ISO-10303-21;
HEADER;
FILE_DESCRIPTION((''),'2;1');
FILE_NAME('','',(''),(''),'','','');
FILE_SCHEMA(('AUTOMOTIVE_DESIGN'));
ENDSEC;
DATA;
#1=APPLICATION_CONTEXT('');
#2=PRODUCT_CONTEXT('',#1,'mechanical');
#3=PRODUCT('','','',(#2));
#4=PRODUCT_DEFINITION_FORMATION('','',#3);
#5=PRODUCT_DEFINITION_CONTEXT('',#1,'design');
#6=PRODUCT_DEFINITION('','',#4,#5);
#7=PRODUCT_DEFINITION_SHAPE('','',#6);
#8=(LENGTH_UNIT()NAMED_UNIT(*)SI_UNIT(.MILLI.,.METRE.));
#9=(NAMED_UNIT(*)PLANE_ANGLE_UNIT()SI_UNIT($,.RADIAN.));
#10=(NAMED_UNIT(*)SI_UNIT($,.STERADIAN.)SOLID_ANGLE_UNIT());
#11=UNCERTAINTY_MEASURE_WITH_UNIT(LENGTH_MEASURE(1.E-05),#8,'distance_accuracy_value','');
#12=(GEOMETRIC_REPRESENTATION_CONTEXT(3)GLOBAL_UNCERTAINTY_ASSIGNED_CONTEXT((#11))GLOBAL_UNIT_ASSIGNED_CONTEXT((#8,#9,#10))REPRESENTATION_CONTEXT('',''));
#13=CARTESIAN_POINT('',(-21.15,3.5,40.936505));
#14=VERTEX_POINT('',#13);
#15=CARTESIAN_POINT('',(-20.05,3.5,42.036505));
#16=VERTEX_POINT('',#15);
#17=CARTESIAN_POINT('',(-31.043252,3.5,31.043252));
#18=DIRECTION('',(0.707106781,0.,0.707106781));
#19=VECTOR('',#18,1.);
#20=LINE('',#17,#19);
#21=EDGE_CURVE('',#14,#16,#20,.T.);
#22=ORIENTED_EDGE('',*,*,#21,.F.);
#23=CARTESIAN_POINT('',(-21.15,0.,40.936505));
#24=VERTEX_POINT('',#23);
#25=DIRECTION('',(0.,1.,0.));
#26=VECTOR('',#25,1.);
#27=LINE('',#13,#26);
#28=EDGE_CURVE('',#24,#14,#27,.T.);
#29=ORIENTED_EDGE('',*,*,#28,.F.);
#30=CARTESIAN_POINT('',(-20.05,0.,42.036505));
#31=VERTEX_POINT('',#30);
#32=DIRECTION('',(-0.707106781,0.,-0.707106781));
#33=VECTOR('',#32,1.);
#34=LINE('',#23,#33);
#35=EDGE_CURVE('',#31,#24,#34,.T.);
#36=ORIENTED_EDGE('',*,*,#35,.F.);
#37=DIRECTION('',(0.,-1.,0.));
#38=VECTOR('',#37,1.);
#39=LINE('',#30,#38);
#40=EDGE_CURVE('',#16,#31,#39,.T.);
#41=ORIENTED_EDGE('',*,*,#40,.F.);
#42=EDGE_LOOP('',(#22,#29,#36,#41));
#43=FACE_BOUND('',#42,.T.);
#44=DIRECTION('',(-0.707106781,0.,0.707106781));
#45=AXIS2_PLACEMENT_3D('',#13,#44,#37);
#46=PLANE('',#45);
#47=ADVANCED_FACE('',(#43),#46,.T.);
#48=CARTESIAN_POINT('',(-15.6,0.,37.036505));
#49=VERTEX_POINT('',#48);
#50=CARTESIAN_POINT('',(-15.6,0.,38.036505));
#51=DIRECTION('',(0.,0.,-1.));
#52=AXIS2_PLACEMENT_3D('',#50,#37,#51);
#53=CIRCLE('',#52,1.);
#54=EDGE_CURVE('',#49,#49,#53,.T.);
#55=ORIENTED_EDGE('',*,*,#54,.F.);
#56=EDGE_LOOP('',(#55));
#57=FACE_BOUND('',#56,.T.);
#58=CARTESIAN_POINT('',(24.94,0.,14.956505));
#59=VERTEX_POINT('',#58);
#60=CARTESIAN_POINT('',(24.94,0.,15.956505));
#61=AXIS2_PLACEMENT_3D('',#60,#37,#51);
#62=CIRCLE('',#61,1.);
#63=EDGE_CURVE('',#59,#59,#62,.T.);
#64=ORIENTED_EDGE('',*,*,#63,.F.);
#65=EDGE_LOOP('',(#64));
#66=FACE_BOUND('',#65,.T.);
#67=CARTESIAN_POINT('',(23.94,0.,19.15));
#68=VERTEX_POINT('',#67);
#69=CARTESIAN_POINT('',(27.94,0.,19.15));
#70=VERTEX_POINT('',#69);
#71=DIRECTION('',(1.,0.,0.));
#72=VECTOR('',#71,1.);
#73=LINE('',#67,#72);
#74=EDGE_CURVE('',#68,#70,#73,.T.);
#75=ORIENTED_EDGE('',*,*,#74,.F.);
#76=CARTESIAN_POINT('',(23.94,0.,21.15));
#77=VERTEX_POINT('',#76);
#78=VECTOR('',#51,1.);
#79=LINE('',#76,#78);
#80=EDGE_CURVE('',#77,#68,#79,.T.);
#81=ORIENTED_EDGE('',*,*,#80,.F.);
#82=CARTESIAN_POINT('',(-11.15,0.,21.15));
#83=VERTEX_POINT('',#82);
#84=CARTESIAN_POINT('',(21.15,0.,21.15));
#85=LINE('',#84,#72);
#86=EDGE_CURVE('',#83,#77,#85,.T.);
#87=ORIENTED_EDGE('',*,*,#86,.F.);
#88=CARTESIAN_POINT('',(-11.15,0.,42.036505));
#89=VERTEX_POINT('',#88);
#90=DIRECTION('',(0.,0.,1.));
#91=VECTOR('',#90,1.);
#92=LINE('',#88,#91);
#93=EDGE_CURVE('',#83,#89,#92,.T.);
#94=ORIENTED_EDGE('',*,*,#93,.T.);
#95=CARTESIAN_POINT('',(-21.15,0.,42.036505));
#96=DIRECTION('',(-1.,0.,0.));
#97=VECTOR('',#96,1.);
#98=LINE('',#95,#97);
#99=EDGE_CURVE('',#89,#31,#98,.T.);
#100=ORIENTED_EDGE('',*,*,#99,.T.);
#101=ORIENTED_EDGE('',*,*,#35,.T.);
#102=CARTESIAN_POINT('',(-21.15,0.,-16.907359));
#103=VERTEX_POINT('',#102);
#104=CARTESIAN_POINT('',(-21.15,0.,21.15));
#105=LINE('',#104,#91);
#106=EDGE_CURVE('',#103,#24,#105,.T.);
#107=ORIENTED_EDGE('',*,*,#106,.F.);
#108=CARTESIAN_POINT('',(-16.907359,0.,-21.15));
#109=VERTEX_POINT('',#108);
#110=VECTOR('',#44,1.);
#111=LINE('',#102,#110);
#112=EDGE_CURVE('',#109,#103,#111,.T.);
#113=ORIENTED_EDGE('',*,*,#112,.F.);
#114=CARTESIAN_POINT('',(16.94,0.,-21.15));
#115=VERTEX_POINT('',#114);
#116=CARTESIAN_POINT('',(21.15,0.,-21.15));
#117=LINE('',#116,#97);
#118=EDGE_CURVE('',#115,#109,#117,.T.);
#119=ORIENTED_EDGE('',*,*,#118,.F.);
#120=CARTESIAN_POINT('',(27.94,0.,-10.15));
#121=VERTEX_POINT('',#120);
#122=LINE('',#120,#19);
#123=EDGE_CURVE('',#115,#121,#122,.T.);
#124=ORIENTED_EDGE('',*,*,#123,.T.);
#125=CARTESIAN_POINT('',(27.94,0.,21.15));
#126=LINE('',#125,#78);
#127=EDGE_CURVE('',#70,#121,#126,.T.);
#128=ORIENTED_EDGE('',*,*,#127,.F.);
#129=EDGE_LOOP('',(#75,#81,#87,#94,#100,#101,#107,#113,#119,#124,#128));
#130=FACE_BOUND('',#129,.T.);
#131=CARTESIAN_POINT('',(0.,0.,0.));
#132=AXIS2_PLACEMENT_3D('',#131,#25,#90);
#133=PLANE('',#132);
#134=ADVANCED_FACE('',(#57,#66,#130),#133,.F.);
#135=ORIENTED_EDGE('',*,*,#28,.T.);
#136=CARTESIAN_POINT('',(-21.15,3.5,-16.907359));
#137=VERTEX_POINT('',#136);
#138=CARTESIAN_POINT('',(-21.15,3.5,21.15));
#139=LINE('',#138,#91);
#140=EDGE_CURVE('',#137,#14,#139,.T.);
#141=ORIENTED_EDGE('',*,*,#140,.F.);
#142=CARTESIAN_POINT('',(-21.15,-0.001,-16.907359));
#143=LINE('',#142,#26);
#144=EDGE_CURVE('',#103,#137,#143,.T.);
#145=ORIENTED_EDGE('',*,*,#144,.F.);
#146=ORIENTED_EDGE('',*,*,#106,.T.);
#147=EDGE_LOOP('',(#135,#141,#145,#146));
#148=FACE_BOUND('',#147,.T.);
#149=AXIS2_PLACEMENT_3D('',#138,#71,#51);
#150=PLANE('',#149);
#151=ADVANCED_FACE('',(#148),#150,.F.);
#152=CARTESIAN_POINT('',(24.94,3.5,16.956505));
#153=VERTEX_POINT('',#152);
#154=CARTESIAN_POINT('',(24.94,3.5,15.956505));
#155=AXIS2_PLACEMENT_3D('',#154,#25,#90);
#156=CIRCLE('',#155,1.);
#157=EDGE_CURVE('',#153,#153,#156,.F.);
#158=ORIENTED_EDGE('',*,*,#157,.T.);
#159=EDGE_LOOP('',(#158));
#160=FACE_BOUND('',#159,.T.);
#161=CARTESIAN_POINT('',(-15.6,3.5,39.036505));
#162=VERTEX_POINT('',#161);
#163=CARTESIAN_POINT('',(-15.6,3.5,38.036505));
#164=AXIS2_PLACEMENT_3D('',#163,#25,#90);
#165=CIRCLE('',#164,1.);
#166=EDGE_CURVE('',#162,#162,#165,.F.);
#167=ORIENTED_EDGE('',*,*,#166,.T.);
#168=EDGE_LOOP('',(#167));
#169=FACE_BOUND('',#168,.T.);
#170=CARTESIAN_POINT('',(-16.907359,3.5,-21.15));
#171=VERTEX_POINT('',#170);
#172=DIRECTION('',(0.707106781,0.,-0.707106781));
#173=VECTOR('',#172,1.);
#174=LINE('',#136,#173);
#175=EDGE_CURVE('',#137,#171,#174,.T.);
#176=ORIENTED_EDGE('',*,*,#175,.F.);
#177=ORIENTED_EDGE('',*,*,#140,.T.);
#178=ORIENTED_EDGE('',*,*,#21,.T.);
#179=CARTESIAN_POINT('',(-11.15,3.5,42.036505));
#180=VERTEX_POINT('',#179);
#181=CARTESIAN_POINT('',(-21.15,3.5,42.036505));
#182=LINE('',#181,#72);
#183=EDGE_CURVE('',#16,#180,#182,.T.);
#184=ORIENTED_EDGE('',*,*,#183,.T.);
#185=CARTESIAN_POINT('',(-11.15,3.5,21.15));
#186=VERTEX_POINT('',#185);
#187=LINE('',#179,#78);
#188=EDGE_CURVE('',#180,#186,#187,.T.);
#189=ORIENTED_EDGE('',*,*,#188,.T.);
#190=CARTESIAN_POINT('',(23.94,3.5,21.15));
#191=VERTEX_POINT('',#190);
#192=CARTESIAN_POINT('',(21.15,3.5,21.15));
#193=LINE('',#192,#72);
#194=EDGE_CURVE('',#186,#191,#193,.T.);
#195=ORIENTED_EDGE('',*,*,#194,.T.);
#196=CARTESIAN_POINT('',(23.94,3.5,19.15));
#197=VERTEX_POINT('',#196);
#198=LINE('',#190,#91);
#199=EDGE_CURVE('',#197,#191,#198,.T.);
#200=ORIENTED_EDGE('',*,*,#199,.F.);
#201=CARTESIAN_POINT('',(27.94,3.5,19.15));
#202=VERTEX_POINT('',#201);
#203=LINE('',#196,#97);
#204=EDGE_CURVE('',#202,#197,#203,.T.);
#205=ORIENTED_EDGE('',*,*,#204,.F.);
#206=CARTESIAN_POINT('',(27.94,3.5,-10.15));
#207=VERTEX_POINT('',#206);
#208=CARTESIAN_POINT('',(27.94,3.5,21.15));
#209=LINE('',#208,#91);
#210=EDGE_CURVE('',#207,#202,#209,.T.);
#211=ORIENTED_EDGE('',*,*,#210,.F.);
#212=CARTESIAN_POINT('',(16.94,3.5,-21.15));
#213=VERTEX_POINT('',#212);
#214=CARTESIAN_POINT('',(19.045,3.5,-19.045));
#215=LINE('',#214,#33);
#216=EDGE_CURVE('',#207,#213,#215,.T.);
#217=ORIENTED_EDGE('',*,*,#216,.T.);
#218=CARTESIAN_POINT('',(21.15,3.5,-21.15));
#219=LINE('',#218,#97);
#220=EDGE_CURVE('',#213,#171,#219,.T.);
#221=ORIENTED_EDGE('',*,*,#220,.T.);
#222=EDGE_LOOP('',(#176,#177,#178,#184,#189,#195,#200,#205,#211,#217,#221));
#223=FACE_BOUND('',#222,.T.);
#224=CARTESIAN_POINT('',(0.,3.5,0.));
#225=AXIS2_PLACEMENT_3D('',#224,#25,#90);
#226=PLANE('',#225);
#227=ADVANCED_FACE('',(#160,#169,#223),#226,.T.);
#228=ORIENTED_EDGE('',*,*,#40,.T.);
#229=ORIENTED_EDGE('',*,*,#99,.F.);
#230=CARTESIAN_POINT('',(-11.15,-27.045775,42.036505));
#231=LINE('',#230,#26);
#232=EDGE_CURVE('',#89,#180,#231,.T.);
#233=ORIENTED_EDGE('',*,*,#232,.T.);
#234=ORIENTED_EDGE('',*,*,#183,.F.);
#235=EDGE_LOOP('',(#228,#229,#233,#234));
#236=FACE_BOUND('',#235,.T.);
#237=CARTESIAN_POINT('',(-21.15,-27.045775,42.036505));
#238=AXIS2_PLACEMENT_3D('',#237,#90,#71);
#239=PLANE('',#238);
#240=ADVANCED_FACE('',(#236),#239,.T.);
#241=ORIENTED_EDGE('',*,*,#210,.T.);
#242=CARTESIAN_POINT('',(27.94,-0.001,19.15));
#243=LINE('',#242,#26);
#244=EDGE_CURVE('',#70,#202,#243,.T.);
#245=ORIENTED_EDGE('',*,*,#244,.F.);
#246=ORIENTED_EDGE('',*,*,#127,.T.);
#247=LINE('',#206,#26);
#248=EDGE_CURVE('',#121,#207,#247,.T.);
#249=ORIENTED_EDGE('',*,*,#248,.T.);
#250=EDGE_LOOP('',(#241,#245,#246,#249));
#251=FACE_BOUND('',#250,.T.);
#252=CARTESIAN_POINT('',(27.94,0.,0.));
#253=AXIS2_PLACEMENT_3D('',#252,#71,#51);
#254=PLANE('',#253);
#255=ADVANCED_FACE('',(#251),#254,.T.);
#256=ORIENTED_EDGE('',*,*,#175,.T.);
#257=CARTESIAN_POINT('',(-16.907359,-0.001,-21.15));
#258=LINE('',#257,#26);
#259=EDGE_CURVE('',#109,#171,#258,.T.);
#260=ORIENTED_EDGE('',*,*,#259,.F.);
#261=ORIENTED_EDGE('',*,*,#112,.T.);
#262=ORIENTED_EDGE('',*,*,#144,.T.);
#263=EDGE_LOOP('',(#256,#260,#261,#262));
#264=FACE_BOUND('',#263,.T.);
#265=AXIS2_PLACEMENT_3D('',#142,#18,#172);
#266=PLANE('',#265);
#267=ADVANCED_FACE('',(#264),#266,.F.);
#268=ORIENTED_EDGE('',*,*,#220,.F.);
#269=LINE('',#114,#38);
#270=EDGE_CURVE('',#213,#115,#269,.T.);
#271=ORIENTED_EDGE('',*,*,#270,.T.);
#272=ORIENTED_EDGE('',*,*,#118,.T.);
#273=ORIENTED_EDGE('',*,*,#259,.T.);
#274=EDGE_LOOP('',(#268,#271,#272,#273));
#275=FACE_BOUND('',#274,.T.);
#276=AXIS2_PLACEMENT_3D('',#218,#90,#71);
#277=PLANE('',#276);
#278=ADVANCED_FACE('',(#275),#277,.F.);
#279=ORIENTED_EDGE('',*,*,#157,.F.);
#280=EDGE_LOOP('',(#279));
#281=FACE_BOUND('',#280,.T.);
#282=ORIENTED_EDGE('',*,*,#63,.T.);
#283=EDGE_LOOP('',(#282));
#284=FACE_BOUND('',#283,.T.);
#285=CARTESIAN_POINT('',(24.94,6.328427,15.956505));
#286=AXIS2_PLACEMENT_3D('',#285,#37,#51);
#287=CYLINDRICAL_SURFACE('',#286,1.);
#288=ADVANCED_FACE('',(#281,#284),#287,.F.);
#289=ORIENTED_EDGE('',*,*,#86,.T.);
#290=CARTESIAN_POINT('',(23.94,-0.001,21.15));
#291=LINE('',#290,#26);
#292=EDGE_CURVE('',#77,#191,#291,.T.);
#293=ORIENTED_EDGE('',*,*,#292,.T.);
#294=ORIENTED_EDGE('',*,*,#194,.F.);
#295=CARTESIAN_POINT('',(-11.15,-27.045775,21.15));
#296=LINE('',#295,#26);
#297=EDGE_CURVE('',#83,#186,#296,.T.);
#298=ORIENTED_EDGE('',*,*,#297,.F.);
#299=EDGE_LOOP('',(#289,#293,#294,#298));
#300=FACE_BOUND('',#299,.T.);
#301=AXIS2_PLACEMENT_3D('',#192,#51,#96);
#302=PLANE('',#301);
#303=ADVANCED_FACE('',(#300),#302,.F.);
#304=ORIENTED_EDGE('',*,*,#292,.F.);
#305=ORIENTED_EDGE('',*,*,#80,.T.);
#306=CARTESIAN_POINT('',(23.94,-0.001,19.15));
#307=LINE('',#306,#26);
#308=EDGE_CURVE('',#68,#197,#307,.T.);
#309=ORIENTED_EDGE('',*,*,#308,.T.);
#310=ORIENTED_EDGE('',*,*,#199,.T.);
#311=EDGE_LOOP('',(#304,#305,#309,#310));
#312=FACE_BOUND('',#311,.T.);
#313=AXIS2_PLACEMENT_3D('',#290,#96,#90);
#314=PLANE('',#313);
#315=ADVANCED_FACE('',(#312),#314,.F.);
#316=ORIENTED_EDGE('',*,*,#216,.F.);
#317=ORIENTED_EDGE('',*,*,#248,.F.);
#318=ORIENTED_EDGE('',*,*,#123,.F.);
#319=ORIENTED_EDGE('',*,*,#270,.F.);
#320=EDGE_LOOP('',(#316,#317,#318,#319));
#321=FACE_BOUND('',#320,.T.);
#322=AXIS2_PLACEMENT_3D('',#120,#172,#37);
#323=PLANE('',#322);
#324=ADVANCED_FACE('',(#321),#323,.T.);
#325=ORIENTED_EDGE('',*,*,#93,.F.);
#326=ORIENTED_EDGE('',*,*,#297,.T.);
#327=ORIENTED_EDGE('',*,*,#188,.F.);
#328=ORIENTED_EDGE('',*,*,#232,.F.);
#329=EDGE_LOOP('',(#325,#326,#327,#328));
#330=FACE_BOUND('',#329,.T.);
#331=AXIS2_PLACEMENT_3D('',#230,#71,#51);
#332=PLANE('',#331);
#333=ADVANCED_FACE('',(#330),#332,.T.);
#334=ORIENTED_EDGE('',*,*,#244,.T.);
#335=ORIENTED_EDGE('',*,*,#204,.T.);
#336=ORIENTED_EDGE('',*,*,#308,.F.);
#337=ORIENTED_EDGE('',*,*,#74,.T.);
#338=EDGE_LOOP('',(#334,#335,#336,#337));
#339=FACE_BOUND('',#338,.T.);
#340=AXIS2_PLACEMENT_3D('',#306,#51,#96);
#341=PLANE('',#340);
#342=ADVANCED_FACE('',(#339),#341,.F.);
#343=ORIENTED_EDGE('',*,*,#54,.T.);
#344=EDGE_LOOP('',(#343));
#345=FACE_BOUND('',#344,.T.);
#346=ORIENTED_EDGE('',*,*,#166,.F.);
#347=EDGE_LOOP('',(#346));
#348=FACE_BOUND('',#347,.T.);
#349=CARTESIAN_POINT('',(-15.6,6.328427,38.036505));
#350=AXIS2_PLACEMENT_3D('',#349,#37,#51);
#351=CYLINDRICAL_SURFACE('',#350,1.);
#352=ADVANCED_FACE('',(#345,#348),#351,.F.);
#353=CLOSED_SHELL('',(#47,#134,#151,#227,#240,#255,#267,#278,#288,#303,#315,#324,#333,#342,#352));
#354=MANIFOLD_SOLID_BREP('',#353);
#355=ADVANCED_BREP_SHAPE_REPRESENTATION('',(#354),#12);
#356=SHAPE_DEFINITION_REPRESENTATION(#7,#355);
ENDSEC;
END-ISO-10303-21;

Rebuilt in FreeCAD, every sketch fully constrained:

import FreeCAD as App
import Part
import Sketcher
from FreeCAD import Vector
Q = App.Units.Quantity


def edges_at(feature, points):
    """Names of the edges that pass closest to the given points."""
    edges = feature.Shape.Edges
    near = lambda p: min(range(len(edges)), key=lambda i: edges[i].distToShape(Part.Vertex(*p))[0])
    return sorted({f"Edge{near(p) + 1}" for p in points})

doc = App.newDocument("Part")
params = doc.addObject("Spreadsheet::Sheet", "Params")
for row, (alias, value) in enumerate([
    ("sketch1_width", "42.3 mm"),
    ("pad1_length", "3.5 mm"),
    ("sketch2_length", "6 mm"),
    ("pocket1_length", "3.5 mm"),
    ("sketch3_width", "3.5 mm"),
    ("sketch3_height", "42.3 mm"),
    ("pad2_length", "6.79 mm"),
    ("pad2_length2", "6.79 mm"),
    ("sketch4_width", "4 mm"),
    ("sketch4_height", "2 mm"),
    ("sketch5_width", "10 mm"),
    ("sketch5_length", "6 mm"),
    ("pad3_length", "3.5 mm"),
    ("chamfer_size", "1.1 mm"),
    ("sketch6_diameter", "2 mm"),
    ("pocket3_length", "3.5 mm"),
    ("chamfer2_size", "11 mm"),
    ("sketch7_diameter", "2 mm"),
    ("pocket4_length", "3.5 mm"),
], start=1):
    params.set(f"A{row}", alias)
    params.set(f"B{row}", "=" + value)
    params.setAlias(f"B{row}", alias)

body = doc.addObject("PartDesign::Body", "Body")

sketch1 = doc.addObject("Sketcher::SketchObject", "Sketch")
body.addObject(sketch1)
sketch1.AttachmentSupport = (doc.XZ_Plane, [""])
sketch1.MapMode = "FlatFace"
sketch1.addGeometry([
    Part.LineSegment(Vector(-21, -21, 0), Vector(-21, 21, 0)),
    Part.LineSegment(Vector(-21, 21, 0), Vector(21, 21, 0)),
    Part.LineSegment(Vector(21, 21, 0), Vector(21, -21, 0)),
    Part.LineSegment(Vector(21, -21, 0), Vector(-21, -21, 0)),
], False)
sketch1.addConstraint([
    Sketcher.Constraint("Coincident", 0, 2, 1, 1),
    Sketcher.Constraint("Coincident", 1, 2, 2, 1),
    Sketcher.Constraint("Coincident", 2, 2, 3, 1),
    Sketcher.Constraint("Coincident", 3, 2, 0, 1),
    Sketcher.Constraint("Vertical", 0),
    Sketcher.Constraint("Horizontal", 1),
    Sketcher.Constraint("Vertical", 2),
    Sketcher.Constraint("Horizontal", 3),
    Sketcher.Constraint("Symmetric", 0, 2, 2, 2, -1, 1),
    Sketcher.Constraint("Equal", 3, 0),
    Sketcher.Constraint("DistanceX", 1, 1, 1, 2, Q("42.3 mm")),
])
sketch1.setExpression("Constraints[10]", "Params.sketch1_width")
pad1 = doc.addObject("PartDesign::Pad", "Pad")
body.addObject(pad1)
pad1.Profile = sketch1
pad1.setExpression("Length", "Params.pad1_length")
pad1.Reversed = True

sketch2 = doc.addObject("Sketcher::SketchObject", "Sketch001")
body.addObject(sketch2)
sketch2.AttachmentSupport = (doc.XZ_Plane, [""])
sketch2.MapMode = "FlatFace"
sketch2.AttachmentOffset = App.Placement(Vector(0, 0, -3.5), App.Rotation())
sketch2.addGeometry([
    Part.LineSegment(Vector(-21.1, -16.9, 0), Vector(-16.9, -21.1, 0)),
    Part.LineSegment(Vector(-16.9, -21.1, 0), Vector(-21.1, -21.1, 0)),
    Part.LineSegment(Vector(-21.1, -21.1, 0), Vector(-21.1, -16.9, 0)),
], False)
sketch2.addConstraint([
    Sketcher.Constraint("Coincident", 0, 2, 1, 1),
    Sketcher.Constraint("Coincident", 1, 2, 2, 1),
    Sketcher.Constraint("Coincident", 2, 2, 0, 1),
    Sketcher.Constraint("Horizontal", 1),
    Sketcher.Constraint("Vertical", 2),
    Sketcher.Constraint("Equal", 1, 2),
    Sketcher.Constraint("Distance", 0, Q("6 mm")),
    Sketcher.Constraint("DistanceY", 0, 2, -1, 1, Q("21.15 mm")),
    Sketcher.Constraint("DistanceX", 1, 2, -1, 1, Q("21.15 mm")),
])
sketch2.setExpression("Constraints[6]", "Params.sketch2_length")
pocket1 = doc.addObject("PartDesign::Pocket", "Pocket")
body.addObject(pocket1)
pocket1.Profile = sketch2
pocket1.setExpression("Length", "Params.pocket1_length")
pocket1.Reversed = True
doc.recompute()

polarpattern = doc.addObject("PartDesign::PolarPattern", "PolarPattern")
body.addObject(polarpattern)
polarpattern.Originals = [pocket1]
polarpattern.Axis = (doc.Y_Axis, [""])
polarpattern.Angle = 360
polarpattern.Occurrences = 4
body.Tip = polarpattern

sketch3 = doc.addObject("Sketcher::SketchObject", "Sketch002")
body.addObject(sketch3)
sketch3.AttachmentSupport = (doc.YZ_Plane, [""])
sketch3.MapMode = "FlatFace"
sketch3.AttachmentOffset = App.Placement(Vector(0, 0, 21.15), App.Rotation())
sketch3.addGeometry([
    Part.LineSegment(Vector(3.5, 21.1, 0), Vector(0, 21.1, 0)),
    Part.LineSegment(Vector(0, 21.1, 0), Vector(0, -21.1, 0)),
    Part.LineSegment(Vector(0, -21.1, 0), Vector(3.5, -21.1, 0)),
    Part.LineSegment(Vector(3.5, -21.1, 0), Vector(3.5, 21.1, 0)),
], False)
sketch3.addConstraint([
    Sketcher.Constraint("Coincident", 0, 2, 1, 1),
    Sketcher.Constraint("Coincident", 1, 2, 2, 1),
    Sketcher.Constraint("Coincident", 2, 2, 3, 1),
    Sketcher.Constraint("Coincident", 3, 2, 0, 1),
    Sketcher.Constraint("Horizontal", 0),
    Sketcher.Constraint("Vertical", 1),
    Sketcher.Constraint("Horizontal", 2),
    Sketcher.Constraint("Vertical", 3),
    Sketcher.Constraint("Symmetric", 0, 2, 1, 2, -1, 1),
    Sketcher.Constraint("DistanceX", 0, 2, 0, 1, Q("3.5 mm")),
    Sketcher.Constraint("DistanceY", 1, 2, 1, 1, Q("42.3 mm")),
])
sketch3.setExpression("Constraints[9]", "Params.sketch3_width")
sketch3.setExpression("Constraints[10]", "Params.sketch3_height")
pad2 = doc.addObject("PartDesign::Pad", "Pad001")
body.addObject(pad2)
pad2.Profile = sketch3
pad2.Type = "TwoLengths"
pad2.setExpression("Length", "Params.pad2_length")
pad2.setExpression("Length2", "Params.pad2_length2")

sketch4 = doc.addObject("Sketcher::SketchObject", "Sketch003")
body.addObject(sketch4)
sketch4.AttachmentSupport = (doc.XZ_Plane, [""])
sketch4.MapMode = "FlatFace"
sketch4.AttachmentOffset = App.Placement(Vector(0, 0, -3.5), App.Rotation())
sketch4.addGeometry([
    Part.LineSegment(Vector(23.9, 19.1, 0), Vector(23.9, 21.1, 0)),
    Part.LineSegment(Vector(23.9, 21.1, 0), Vector(27.9, 21.1, 0)),
    Part.LineSegment(Vector(27.9, 21.1, 0), Vector(27.9, 19.1, 0)),
    Part.LineSegment(Vector(27.9, 19.1, 0), Vector(23.9, 19.1, 0)),
], False)
sketch4.addConstraint([
    Sketcher.Constraint("Coincident", 0, 2, 1, 1),
    Sketcher.Constraint("Coincident", 1, 2, 2, 1),
    Sketcher.Constraint("Coincident", 2, 2, 3, 1),
    Sketcher.Constraint("Coincident", 3, 2, 0, 1),
    Sketcher.Constraint("Vertical", 0),
    Sketcher.Constraint("Horizontal", 1),
    Sketcher.Constraint("Vertical", 2),
    Sketcher.Constraint("Horizontal", 3),
    Sketcher.Constraint("DistanceX", 1, 1, 1, 2, Q("4 mm")),
    Sketcher.Constraint("DistanceY", 0, 1, 0, 2, Q("2 mm")),
    Sketcher.Constraint("DistanceX", -1, 1, 0, 2, Q("23.94 mm")),
    Sketcher.Constraint("DistanceY", -1, 1, 0, 2, Q("21.15 mm")),
])
sketch4.setExpression("Constraints[8]", "Params.sketch4_width")
sketch4.setExpression("Constraints[9]", "Params.sketch4_height")
pocket2 = doc.addObject("PartDesign::Pocket", "Pocket001")
body.addObject(pocket2)
pocket2.Profile = sketch4
pocket2.Type = "UpToFirst"
pocket2.Reversed = True

sketch5 = doc.addObject("Sketcher::SketchObject", "Sketch004")
body.addObject(sketch5)
sketch5.AttachmentSupport = (doc.XZ_Plane, [""])
sketch5.MapMode = "FlatFace"
sketch5.AttachmentOffset = App.Placement(Vector(0, 0, -3.5), App.Rotation())
sketch5.addGeometry([
    Part.LineSegment(Vector(-21, 17, 0), Vector(-21, 42, 0)),
    Part.LineSegment(Vector(-21, 42, 0), Vector(-11, 42, 0)),
    Part.LineSegment(Vector(-11, 42, 0), Vector(-11, 21, 0)),
    Part.LineSegment(Vector(-11, 21, 0), Vector(-17, 21, 0)),
    Part.LineSegment(Vector(-17, 21, 0), Vector(-21, 17, 0)),
], False)
sketch5.addConstraint([
    Sketcher.Constraint("Coincident", 0, 2, 1, 1),
    Sketcher.Constraint("Coincident", 1, 2, 2, 1),
    Sketcher.Constraint("Coincident", 2, 2, 3, 1),
    Sketcher.Constraint("Coincident", 3, 2, 4, 1),
    Sketcher.Constraint("Coincident", 4, 2, 0, 1),
    Sketcher.Constraint("Vertical", 0),
    Sketcher.Constraint("Horizontal", 1),
    Sketcher.Constraint("Vertical", 2),
    Sketcher.Constraint("Horizontal", 3),
    Sketcher.Constraint("DistanceX", 1, 1, 1, 2, Q("10 mm")),
    Sketcher.Constraint("Angle", 4, Q("-135 deg")),
    Sketcher.Constraint("Distance", 4, Q("6 mm")),
    Sketcher.Constraint("DistanceX", 0, 2, -1, 1, Q("21.15 mm")),
    Sketcher.Constraint("DistanceY", -1, 1, 2, 2, Q("21.15 mm")),
    Sketcher.Constraint("DistanceY", 0, 1, 0, 2, Q("25.129146 mm")),
])
sketch5.setExpression("Constraints[9]", "Params.sketch5_width")
sketch5.setExpression("Constraints[11]", "Params.sketch5_length")
pad3 = doc.addObject("PartDesign::Pad", "Pad002")
body.addObject(pad3)
pad3.Profile = sketch5
pad3.setExpression("Length", "Params.pad3_length")
doc.recompute()

chamfer = doc.addObject("PartDesign::Chamfer", "Chamfer")
body.addObject(chamfer)
chamfer.Base = (pad3, edges_at(pad3, [(-21.15, 1.75, 42.037)]))
chamfer.setExpression("Size", "Params.chamfer_size")

sketch6 = doc.addObject("Sketcher::SketchObject", "Sketch005")
body.addObject(sketch6)
sketch6.AttachmentSupport = (doc.XZ_Plane, [""])
sketch6.MapMode = "FlatFace"
sketch6.addGeometry(Part.Circle(Vector(-15.6, 38, 0), Vector(0, 0, 1), 1), False)
sketch6.addConstraint([
    Sketcher.Constraint("Diameter", 0, Q("2 mm")),
    Sketcher.Constraint("DistanceX", 0, 3, -1, 1, Q("15.6 mm")),
    Sketcher.Constraint("DistanceY", -1, 1, 0, 3, Q("38.036505 mm")),
])
sketch6.setExpression("Constraints[0]", "Params.sketch6_diameter")
pocket3 = doc.addObject("PartDesign::Pocket", "Pocket002")
body.addObject(pocket3)
pocket3.Profile = sketch6
pocket3.setExpression("Length", "Params.pocket3_length")
doc.recompute()

chamfer2 = doc.addObject("PartDesign::Chamfer", "Chamfer001")
body.addObject(chamfer2)
chamfer2.Base = (pocket3, edges_at(pocket3, [(27.94, 1.75, -21.15)]))
chamfer2.setExpression("Size", "Params.chamfer2_size")

sketch7 = doc.addObject("Sketcher::SketchObject", "Sketch006")
body.addObject(sketch7)
sketch7.AttachmentSupport = (doc.XZ_Plane, [""])
sketch7.MapMode = "FlatFace"
sketch7.addGeometry(Part.Circle(Vector(24.9, 16, 0), Vector(0, 0, 1), 1), False)
sketch7.addConstraint([
    Sketcher.Constraint("Diameter", 0, Q("2 mm")),
    Sketcher.Constraint("DistanceX", -1, 1, 0, 3, Q("24.94 mm")),
    Sketcher.Constraint("DistanceY", -1, 1, 0, 3, Q("15.956505 mm")),
])
sketch7.setExpression("Constraints[0]", "Params.sketch7_diameter")
pocket4 = doc.addObject("PartDesign::Pocket", "Pocket003")
body.addObject(pocket4)
pocket4.Profile = sketch7
pocket4.setExpression("Length", "Params.pocket4_length")

doc.recompute()
